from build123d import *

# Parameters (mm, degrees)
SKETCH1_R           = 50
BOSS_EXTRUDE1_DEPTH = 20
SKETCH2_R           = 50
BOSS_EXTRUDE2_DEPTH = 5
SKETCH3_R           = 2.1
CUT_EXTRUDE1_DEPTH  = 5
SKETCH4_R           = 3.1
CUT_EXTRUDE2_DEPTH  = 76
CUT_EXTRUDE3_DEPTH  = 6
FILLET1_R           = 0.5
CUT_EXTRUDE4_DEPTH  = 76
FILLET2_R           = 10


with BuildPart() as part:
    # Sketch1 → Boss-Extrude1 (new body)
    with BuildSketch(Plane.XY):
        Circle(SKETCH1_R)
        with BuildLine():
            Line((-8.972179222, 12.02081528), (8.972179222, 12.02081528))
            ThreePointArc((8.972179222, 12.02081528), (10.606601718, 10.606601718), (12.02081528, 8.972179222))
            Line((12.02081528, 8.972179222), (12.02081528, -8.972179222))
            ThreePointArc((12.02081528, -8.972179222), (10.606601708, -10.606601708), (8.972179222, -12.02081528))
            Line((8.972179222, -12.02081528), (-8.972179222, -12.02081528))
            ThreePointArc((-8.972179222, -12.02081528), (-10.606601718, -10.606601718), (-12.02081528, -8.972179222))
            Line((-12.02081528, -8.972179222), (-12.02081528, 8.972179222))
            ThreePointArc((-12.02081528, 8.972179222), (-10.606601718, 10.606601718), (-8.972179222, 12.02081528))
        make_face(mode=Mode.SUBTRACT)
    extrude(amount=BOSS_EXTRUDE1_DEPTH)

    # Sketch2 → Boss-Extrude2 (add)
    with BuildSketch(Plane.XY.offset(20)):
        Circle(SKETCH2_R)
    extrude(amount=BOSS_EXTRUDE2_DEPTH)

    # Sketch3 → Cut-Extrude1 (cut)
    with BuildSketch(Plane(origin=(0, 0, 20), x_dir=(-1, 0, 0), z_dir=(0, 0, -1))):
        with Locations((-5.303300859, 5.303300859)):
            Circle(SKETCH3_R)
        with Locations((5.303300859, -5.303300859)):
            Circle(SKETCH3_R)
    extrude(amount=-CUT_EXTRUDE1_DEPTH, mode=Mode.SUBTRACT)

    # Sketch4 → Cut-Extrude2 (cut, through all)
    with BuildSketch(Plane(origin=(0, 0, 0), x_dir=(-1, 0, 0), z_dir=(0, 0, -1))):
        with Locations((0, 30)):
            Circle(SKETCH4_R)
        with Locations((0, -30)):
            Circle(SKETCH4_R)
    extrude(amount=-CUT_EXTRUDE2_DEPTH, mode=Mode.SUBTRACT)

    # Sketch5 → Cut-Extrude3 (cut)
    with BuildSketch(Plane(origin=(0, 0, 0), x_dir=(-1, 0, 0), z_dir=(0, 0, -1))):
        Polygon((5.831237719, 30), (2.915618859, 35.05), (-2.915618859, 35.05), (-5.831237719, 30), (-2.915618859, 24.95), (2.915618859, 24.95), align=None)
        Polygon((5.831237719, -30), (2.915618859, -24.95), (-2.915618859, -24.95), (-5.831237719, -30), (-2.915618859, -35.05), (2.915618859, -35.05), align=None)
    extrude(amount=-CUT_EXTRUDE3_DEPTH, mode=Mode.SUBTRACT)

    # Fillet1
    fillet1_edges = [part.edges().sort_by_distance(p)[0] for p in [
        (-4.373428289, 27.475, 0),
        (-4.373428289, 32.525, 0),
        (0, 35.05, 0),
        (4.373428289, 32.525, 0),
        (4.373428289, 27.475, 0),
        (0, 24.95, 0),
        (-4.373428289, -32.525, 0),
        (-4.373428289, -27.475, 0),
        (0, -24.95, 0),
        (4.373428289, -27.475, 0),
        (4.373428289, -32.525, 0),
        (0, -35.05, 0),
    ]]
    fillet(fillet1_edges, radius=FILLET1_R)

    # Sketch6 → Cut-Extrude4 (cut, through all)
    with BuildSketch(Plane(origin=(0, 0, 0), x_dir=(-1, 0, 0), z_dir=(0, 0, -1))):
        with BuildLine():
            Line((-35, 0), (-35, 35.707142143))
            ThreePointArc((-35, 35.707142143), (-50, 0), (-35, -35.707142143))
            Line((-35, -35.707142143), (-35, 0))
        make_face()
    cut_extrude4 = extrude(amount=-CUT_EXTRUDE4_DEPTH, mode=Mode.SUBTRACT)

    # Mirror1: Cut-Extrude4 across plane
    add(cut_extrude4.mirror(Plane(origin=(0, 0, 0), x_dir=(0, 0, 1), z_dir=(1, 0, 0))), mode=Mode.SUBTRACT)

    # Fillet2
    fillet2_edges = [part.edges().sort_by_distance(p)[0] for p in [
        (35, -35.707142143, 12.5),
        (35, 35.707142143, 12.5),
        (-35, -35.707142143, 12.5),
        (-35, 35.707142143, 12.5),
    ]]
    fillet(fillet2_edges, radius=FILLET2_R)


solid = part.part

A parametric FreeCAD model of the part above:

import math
import FreeCAD as App
import Part
import Sketcher

V = App.Vector
Q = App.Units.Quantity


def edges_at(feature, points):
    """Names of the edges that pass closest to the given points."""
    edges = feature.Shape.Edges
    near = lambda p: min(range(len(edges)), key=lambda i: edges[i].distToShape(Part.Vertex(*p))[0])
    return sorted({f"Edge{near(p) + 1}" for p in points})

doc = App.newDocument("Part")
params = doc.addObject("Spreadsheet::Sheet", "Params")
for row, (alias, value) in enumerate([
    ("sketch1_diameter", "100 mm"),
    ("sketch1_radius", "15 mm"),
    ("pad1_length", "20 mm"),
    ("sketch2_diameter", "100 mm"),
    ("pad2_length", "5 mm"),
    ("sketch3_diameter", "4.2 mm"),
    ("pocket1_length", "5 mm"),
    ("sketch4_diameter", "6.2 mm"),
    ("pocket3_length", "6 mm"),
    ("fillet_radius", "0.5 mm"),
    ("sketch6_radius", "50 mm"),
    ("fillet2_radius", "10 mm"),
], start=1):
    params.set(f"A{row}", alias)
    params.set(f"B{row}", "=" + value)
    params.setAlias(f"B{row}", alias)

body = doc.addObject("PartDesign::Body", "Body")

sketch1 = doc.addObject("Sketcher::SketchObject", "Sketch")
body.addObject(sketch1)
sketch1.AttachmentSupport = (doc.XY_Plane, [""])
sketch1.MapMode = "FlatFace"
sketch1.addGeometry([
    Part.Circle(V(0, 0, 0), V(0, 0, 1), 50),
    Part.ArcOfCircle(Part.Circle(V(0, 0, 0), V(0, 0, 1), 15), math.radians(126.74), math.radians(143.26)),
    Part.LineSegment(V(-9, 12, 0), V(9, 12, 0)),
    Part.ArcOfCircle(Part.Circle(V(0, 0, 0), V(0, 0, 1), 15), math.radians(36.74), math.radians(53.26)),
    Part.LineSegment(V(12, 9, 0), V(12, -9, 0)),
    Part.ArcOfCircle(Part.Circle(V(0, 0, 0), V(0, 0, 1), 15), math.radians(-53.26), math.radians(-36.74)),
    Part.LineSegment(V(9, -12, 0), V(-9, -12, 0)),
    Part.ArcOfCircle(Part.Circle(V(0, 0, 0), V(0, 0, 1), 15), math.radians(-143.26), math.radians(-126.74)),
    Part.LineSegment(V(-12, -9, 0), V(-12, 9, 0)),
], False)
sketch1.addConstraint([
    Sketcher.Constraint("Coincident", 1, 1, 2, 1),
    Sketcher.Constraint("Coincident", 2, 2, 3, 2),
    Sketcher.Constraint("Coincident", 3, 1, 4, 1),
    Sketcher.Constraint("Coincident", 4, 2, 5, 2),
    Sketcher.Constraint("Coincident", 5, 1, 6, 1),
    Sketcher.Constraint("Coincident", 6, 2, 7, 2),
    Sketcher.Constraint("Coincident", 7, 1, 8, 1),
    Sketcher.Constraint("Coincident", 8, 2, 1, 2),
    Sketcher.Constraint("Horizontal", 2),
    Sketcher.Constraint("Vertical", 4),
    Sketcher.Constraint("Horizontal", 6),
    Sketcher.Constraint("Vertical", 8),
    Sketcher.Constraint("Coincident", 0, 3, -1, 1),
    Sketcher.Constraint("Coincident", 1, 3, -1, 1),
    Sketcher.Constraint("Coincident", 3, 3, -1, 1),
    Sketcher.Constraint("Coincident", 5, 3, -1, 1),
    Sketcher.Constraint("Coincident", 7, 3, -1, 1),
    Sketcher.Constraint("Equal", 1, 3),
    Sketcher.Constraint("Equal", 3, 5),
    Sketcher.Constraint("Equal", 5, 7),
    Sketcher.Constraint("Horizontal", 4, 2, 7, 1),
    Sketcher.Constraint("Vertical", 2, 2, 5, 1),
    Sketcher.Constraint("Equal", 6, 4),
    Sketcher.Constraint("Diameter", 0, 100.0),
    Sketcher.Constraint("Radius", 1, 15.0),
    Sketcher.Constraint("DistanceX", 2, 1, 2, 2, 17.944358),
])
sketch1.setExpression("Constraints[23]", "Params.sketch1_diameter")
sketch1.setExpression("Constraints[24]", "Params.sketch1_radius")
pad1 = doc.addObject("PartDesign::Pad", "Pad")
body.addObject(pad1)
pad1.Profile = sketch1
pad1.setExpression("Length", "Params.pad1_length")

sketch2 = doc.addObject("Sketcher::SketchObject", "Sketch001")
body.addObject(sketch2)
sketch2.AttachmentSupport = (doc.XY_Plane, [""])
sketch2.MapMode = "FlatFace"
sketch2.AttachmentOffset = App.Placement(V(0, 0, 20), App.Rotation())
sketch2.addGeometry(Part.Circle(V(0, 0, 0), V(0, 0, 1), 50), False)
sketch2.addConstraint([
    Sketcher.Constraint("Coincident", 0, 3, -1, 1),
    Sketcher.Constraint("Diameter", 0, 100.0),
])
sketch2.setExpression("Constraints[1]", "Params.sketch2_diameter")
pad2 = doc.addObject("PartDesign::Pad", "Pad001")
body.addObject(pad2)
pad2.Profile = sketch2
pad2.setExpression("Length", "Params.pad2_length")

sketch3 = doc.addObject("Sketcher::SketchObject", "Sketch002")
body.addObject(sketch3)
sketch3.AttachmentSupport = (doc.XY_Plane, [""])
sketch3.MapMode = "FlatFace"
sketch3.AttachmentOffset = App.Placement(V(0, 0, 20), App.Rotation())
sketch3.addGeometry([
    Part.Circle(V(5.3, 5.3, 0), V(0, 0, 1), 2.1),
    Part.Circle(V(-5.3, -5.3, 0), V(0, 0, 1), 2.1),
], False)
sketch3.addConstraint([
    Sketcher.Constraint("Equal", 0, 1),
    Sketcher.Constraint("Symmetric", 0, 3, 1, 3, -1, 1),
    Sketcher.Constraint("Diameter", 0, 4.2),
    Sketcher.Constraint("DistanceX", -1, 1, 0, 3, 5.303301),
    Sketcher.Constraint("DistanceY", -1, 1, 0, 3, 5.303301),
])
sketch3.setExpression("Constraints[2]", "Params.sketch3_diameter")
pocket1 = doc.addObject("PartDesign::Pocket", "Pocket")
body.addObject(pocket1)
pocket1.Profile = sketch3
pocket1.setExpression("Length", "Params.pocket1_length")
pocket1.Reversed = True

sketch4 = doc.addObject("Sketcher::SketchObject", "Sketch003")
body.addObject(sketch4)
sketch4.AttachmentSupport = (doc.XY_Plane, [""])
sketch4.MapMode = "FlatFace"
sketch4.addGeometry([
    Part.Circle(V(0, 30, 0), V(0, 0, 1), 3.1),
    Part.Circle(V(0, -30, 0), V(0, 0, 1), 3.1),
], False)
sketch4.addConstraint([
    Sketcher.Constraint("Equal", 0, 1),
    Sketcher.Constraint("Symmetric", 0, 3, 1, 3, -1, 1),
    Sketcher.Constraint("PointOnObject", 0, 3, -2),
    Sketcher.Constraint("Diameter", 0, 6.2),
    Sketcher.Constraint("DistanceY", -1, 1, 0, 3, 30.0),
])
sketch4.setExpression("Constraints[3]", "Params.sketch4_diameter")
pocket2 = doc.addObject("PartDesign::Pocket", "Pocket001")
body.addObject(pocket2)
pocket2.Profile = sketch4
pocket2.Type = "ThroughAll"
pocket2.Reversed = True

sketch5 = doc.addObject("Sketcher::SketchObject", "Sketch004")
body.addObject(sketch5)
sketch5.AttachmentSupport = (doc.XY_Plane, [""])
sketch5.MapMode = "FlatFace"
sketch5.addGeometry([
    Part.LineSegment(V(-6, 30, 0), V(-3, 35, 0)),
    Part.LineSegment(V(-3, 35, 0), V(3, 35, 0)),
    Part.LineSegment(V(3, 35, 0), V(6, 30, 0)),
    Part.LineSegment(V(6, 30, 0), V(3, 25, 0)),
    Part.LineSegment(V(3, 25, 0), V(-3, 25, 0)),
    Part.LineSegment(V(-3, 25, 0), V(-6, 30, 0)),
    Part.LineSegment(V(-6, -30, 0), V(-3, -25, 0)),
    Part.LineSegment(V(-3, -25, 0), V(3, -25, 0)),
    Part.LineSegment(V(3, -25, 0), V(6, -30, 0)),
    Part.LineSegment(V(6, -30, 0), V(3, -35, 0)),
    Part.LineSegment(V(3, -35, 0), V(-3, -35, 0)),
    Part.LineSegment(V(-3, -35, 0), V(-6, -30, 0)),
], False)
sketch5.addConstraint([
    Sketcher.Constraint("Coincident", 0, 2, 1, 1),
    Sketcher.Constraint("Coincident", 1, 2, 2, 1),
    Sketcher.Constraint("Coincident", 2, 2, 3, 1),
    Sketcher.Constraint("Coincident", 3, 2, 4, 1),
    Sketcher.Constraint("Coincident", 4, 2, 5, 1),
    Sketcher.Constraint("Coincident", 5, 2, 0, 1),
    Sketcher.Constraint("Coincident", 6, 2, 7, 1),
    Sketcher.Constraint("Coincident", 7, 2, 8, 1),
    Sketcher.Constraint("Coincident", 8, 2, 9, 1),
    Sketcher.Constraint("Coincident", 9, 2, 10, 1),
    Sketcher.Constraint("Coincident", 10, 2, 11, 1),
    Sketcher.Constraint("Coincident", 11, 2, 6, 1),
    Sketcher.Constraint("Horizontal", 1),
    Sketcher.Constraint("Horizontal", 4),
    Sketcher.Constraint("Horizontal", 7),
    Sketcher.Constraint("Horizontal", 10),
    Sketcher.Constraint("Symmetric", 3, 2, 6, 2, -1, 1),
    Sketcher.Constraint("Symmetric", 5, 2, 8, 2, -1, 1),
    Sketcher.Constraint("Symmetric", 0, 2, 9, 2, -1, 1),
    Sketcher.Constraint("Symmetric", 2, 2, 11, 2, -1, 1),
    Sketcher.Constraint("Symmetric", 2, 2, 5, 2, -2),
    Sketcher.Constraint("Parallel", 0, 3),
    Sketcher.Constraint("Parallel", 2, 5),
    Sketcher.Constraint("Parallel", 5, 8),
    Sketcher.Constraint("Parallel", 8, 11),
    Sketcher.Constraint("Vertical", 1, 2, 3, 2),
    Sketcher.Constraint("Vertical", 0, 2, 4, 2),
    Sketcher.Constraint("Angle", 0, Q("60 deg")),
    Sketcher.Constraint("DistanceY", -1, 1, 2, 2, 30.0),
    Sketcher.Constraint("DistanceY", 3, 2, 1, 2, 10.1),
    Sketcher.Constraint("DistanceX", 1, 1, 1, 2, 5.831238),
])
pocket3 = doc.addObject("PartDesign::Pocket", "Pocket002")
body.addObject(pocket3)
pocket3.Profile = sketch5
pocket3.setExpression("Length", "Params.pocket3_length")
pocket3.Reversed = True
doc.recompute()

fillet = doc.addObject("PartDesign::Fillet", "Fillet")
body.addObject(fillet)
fillet.Base = (pocket3, edges_at(pocket3, [
    (-4.373, 27.475, 0),
    (-4.373, 32.525, 0),
    (0, 35.05, 0),
    (4.373, 32.525, 0),
    (4.373, 27.475, 0),
    (0, 24.95, 0),
    (-4.373, -32.525, 0),
    (-4.373, -27.475, 0),
    (0, -24.95, 0),
    (4.373, -27.475, 0),
    (4.373, -32.525, 0),
    (0, -35.05, 0),
]))
fillet.setExpression("Radius", "Params.fillet_radius")

sketch6 = doc.addObject("Sketcher::SketchObject", "Sketch005")
body.addObject(sketch6)
sketch6.AttachmentSupport = (doc.XY_Plane, [""])
sketch6.MapMode = "FlatFace"
sketch6.addGeometry([
    Part.ArcOfCircle(Part.Circle(V(0, 0, 0), V(0, 0, 1), 50), math.radians(-46), math.radians(46)),
    Part.LineSegment(V(35, -36, 0), V(35, 36, 0)),
], False)
sketch6.addConstraint([
    Sketcher.Constraint("Coincident", 0, 1, 1, 1),
    Sketcher.Constraint("Coincident", 1, 2, 0, 2),
    Sketcher.Constraint("Vertical", 1),
    Sketcher.Constraint("Coincident", 0, 3, -1, 1),
    Sketcher.Constraint("Radius", 0, 50.0),
    Sketcher.Constraint("DistanceX", -1, 1, 0, 1, 35.0),
])
sketch6.setExpression("Constraints[4]", "Params.sketch6_radius")
pocket4 = doc.addObject("PartDesign::Pocket", "Pocket003")
body.addObject(pocket4)
pocket4.Profile = sketch6
pocket4.Type = "ThroughAll"
pocket4.Reversed = True
doc.recompute()

mirrored = doc.addObject("PartDesign::Mirrored", "Mirrored")
body.addObject(mirrored)
mirrored.Originals = [pocket4]
mirrored.MirrorPlane = (doc.YZ_Plane, [""])
body.Tip = mirrored
doc.recompute()

fillet2 = doc.addObject("PartDesign::Fillet", "Fillet001")
body.addObject(fillet2)
fillet2.Base = (mirrored, edges_at(mirrored, [
    (35, -35.707, 12.5),
    (35, 35.707, 12.5),
    (-35, -35.707, 12.5),
    (-35, 35.707, 12.5),
]))
fillet2.setExpression("Radius", "Params.fillet2_radius")

doc.recompute()
